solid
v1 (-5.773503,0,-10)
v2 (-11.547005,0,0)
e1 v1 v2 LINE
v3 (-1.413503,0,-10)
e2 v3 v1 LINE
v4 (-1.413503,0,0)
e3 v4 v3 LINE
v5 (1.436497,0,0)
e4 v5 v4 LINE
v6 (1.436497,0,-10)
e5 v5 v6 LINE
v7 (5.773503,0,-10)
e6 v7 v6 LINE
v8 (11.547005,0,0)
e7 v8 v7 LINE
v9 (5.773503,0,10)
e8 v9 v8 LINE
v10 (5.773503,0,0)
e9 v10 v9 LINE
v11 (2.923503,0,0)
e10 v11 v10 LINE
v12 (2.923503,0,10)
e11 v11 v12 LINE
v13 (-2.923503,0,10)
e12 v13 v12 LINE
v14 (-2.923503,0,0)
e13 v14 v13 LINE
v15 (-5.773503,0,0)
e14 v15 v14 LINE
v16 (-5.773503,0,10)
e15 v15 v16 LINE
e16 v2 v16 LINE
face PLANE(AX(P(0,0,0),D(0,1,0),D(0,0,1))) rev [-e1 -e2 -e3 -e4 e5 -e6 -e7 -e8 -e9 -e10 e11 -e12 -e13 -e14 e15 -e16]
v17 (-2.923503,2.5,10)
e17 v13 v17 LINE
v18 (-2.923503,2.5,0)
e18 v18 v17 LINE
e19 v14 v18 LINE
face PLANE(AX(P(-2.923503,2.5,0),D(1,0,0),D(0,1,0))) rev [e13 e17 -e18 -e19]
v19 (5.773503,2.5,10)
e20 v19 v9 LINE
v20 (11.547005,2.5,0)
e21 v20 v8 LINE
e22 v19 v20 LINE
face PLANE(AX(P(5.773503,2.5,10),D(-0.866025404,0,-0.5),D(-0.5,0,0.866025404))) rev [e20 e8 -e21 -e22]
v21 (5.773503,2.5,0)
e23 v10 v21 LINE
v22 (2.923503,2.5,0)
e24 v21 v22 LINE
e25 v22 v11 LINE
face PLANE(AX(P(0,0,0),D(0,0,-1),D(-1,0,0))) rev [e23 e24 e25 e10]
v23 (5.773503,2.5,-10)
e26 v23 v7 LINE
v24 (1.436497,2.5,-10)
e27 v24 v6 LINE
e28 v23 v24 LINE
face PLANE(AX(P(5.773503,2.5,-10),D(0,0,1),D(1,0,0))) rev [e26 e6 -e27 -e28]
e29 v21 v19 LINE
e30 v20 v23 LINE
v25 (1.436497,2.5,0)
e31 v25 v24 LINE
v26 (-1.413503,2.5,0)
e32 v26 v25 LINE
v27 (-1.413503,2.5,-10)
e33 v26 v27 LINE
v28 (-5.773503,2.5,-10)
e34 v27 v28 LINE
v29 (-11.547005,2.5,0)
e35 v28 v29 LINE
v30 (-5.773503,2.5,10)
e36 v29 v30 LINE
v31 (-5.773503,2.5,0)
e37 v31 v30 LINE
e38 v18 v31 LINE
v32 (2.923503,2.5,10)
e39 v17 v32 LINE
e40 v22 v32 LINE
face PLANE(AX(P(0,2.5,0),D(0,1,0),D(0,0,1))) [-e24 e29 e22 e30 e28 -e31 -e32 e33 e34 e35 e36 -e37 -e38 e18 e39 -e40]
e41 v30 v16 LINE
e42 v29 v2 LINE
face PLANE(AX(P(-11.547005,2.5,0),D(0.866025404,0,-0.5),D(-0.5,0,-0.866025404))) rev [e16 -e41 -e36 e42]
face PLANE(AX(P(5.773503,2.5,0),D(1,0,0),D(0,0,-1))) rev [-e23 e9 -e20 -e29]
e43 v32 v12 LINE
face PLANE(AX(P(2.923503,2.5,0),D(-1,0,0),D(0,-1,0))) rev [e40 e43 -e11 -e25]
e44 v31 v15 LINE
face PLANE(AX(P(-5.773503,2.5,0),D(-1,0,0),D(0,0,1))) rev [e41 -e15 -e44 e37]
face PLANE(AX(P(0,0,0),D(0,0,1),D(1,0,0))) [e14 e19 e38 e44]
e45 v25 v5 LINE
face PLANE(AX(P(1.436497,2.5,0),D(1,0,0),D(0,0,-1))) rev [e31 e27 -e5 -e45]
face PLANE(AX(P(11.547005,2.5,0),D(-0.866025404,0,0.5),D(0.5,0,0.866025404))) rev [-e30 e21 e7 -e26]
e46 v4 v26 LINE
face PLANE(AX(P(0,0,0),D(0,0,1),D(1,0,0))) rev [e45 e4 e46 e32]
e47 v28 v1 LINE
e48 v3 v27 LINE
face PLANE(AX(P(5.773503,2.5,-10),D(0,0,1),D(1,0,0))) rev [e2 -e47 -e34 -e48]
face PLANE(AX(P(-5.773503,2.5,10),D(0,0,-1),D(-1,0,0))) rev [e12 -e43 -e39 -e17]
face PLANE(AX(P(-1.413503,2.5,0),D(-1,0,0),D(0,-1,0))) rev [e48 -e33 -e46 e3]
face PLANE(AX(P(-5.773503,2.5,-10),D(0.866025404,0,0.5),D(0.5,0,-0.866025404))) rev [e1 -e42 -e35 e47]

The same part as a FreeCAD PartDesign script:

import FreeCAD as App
import Part
import Sketcher
Q = App.Units.Quantity

doc = App.newDocument("Part")
body = doc.addObject("PartDesign::Body", "Body")

# Sketch on XZ plane
sketch1 = body.newObject("Sketcher::SketchObject", "Sketch")
sketch1.AttachmentSupport = (doc.getObject("XZ_Plane"), [""])
sketch1.MapMode = "FlatFace"
sketch1.addGeometry([
    Part.LineSegment(App.Vector(12, 0, 0), App.Vector(6, -10, 0)),  # 0
    Part.LineSegment(App.Vector(6, -10, 0), App.Vector(-6, -10, 0)),  # 1
    Part.LineSegment(App.Vector(-6, -10, 0), App.Vector(-12, 0, 0)),  # 2
    Part.LineSegment(App.Vector(-12, 0, 0), App.Vector(-6, 10, 0)),  # 3
    Part.LineSegment(App.Vector(-6, 10, 0), App.Vector(6, 10, 0)),  # 4
    Part.LineSegment(App.Vector(6, 10, 0), App.Vector(12, 0, 0)),  # 5
], False)
sketch1.addConstraint([
    Sketcher.Constraint("Coincident", 0, 2, 1, 1),
    Sketcher.Constraint("Coincident", 1, 2, 2, 1),
    Sketcher.Constraint("Coincident", 2, 2, 3, 1),
    Sketcher.Constraint("Coincident", 3, 2, 4, 1),
    Sketcher.Constraint("Coincident", 4, 2, 5, 1),
    Sketcher.Constraint("Coincident", 5, 2, 0, 1),
    Sketcher.Constraint("Horizontal", 1),
    Sketcher.Constraint("Horizontal", 4),
    Sketcher.Constraint("Symmetric", 0, 2, 3, 2, -1, 1),
    Sketcher.Constraint("Symmetric", 2, 2, 5, 2, -1, 1),
    Sketcher.Constraint("PointOnObject", 2, 2, -1),
    Sketcher.Constraint("Parallel", 2, 5),
    Sketcher.Constraint("Vertical", 1, 2, 3, 2),
    Sketcher.Constraint("Angle", 0, Q("-120 deg")),
    Sketcher.Constraint("DistanceY", 0, 2, -1, 1, 10.0),
    Sketcher.Constraint("DistanceX", 1, 2, 1, 1, 11.547005),
])
pad1 = body.newObject("PartDesign::Pad", "Pad")
pad1.Profile = sketch1
pad1.Length = 2.5
pad1.Reversed = True

# Sketch on XY plane
sketch2 = body.newObject("Sketcher::SketchObject", "Sketch001")
sketch2.AttachmentSupport = (doc.getObject("XY_Plane"), [""])
sketch2.MapMode = "FlatFace"
sketch2.AttachmentOffset = App.Placement(App.Vector(0, 0, 10), App.Rotation())
sketch2.addGeometry([
    Part.LineSegment(App.Vector(-5.8, 2.5, 0), App.Vector(-5.8, 0, 0)),
    Part.LineSegment(App.Vector(-5.8, 0, 0), App.Vector(-2.9, 0, 0)),
    Part.LineSegment(App.Vector(-2.9, 0, 0), App.Vector(-2.9, 2.5, 0)),
    Part.LineSegment(App.Vector(-2.9, 2.5, 0), App.Vector(-5.8, 2.5, 0)),
], False)
sketch2.addConstraint([
    Sketcher.Constraint("Coincident", 0, 2, 1, 1),
    Sketcher.Constraint("Coincident", 1, 2, 2, 1),
    Sketcher.Constraint("Coincident", 2, 2, 3, 1),
    Sketcher.Constraint("Coincident", 3, 2, 0, 1),
    Sketcher.Constraint("Vertical", 0),
    Sketcher.Constraint("Horizontal", 1),
    Sketcher.Constraint("Vertical", 2),
    Sketcher.Constraint("Horizontal", 3),
    Sketcher.Constraint("PointOnObject", 0, 2, -1),
    Sketcher.Constraint("DistanceY", 0, 2, 0, 1, 2.5),
    Sketcher.Constraint("DistanceX", 1, 1, 1, 2, 2.85),
    Sketcher.Constraint("DistanceX", 0, 2, -1, 1, 5.773503),
])
pocket1 = body.newObject("PartDesign::Pocket", "Pocket")
pocket1.Profile = sketch2
pocket1.Length = 10

# Sketch on XY plane
sketch3 = body.newObject("Sketcher::SketchObject", "Sketch002")
sketch3.AttachmentSupport = (doc.getObject("XY_Plane"), [""])
sketch3.MapMode = "FlatFace"
sketch3.AttachmentOffset = App.Placement(App.Vector(0, 0, 10), App.Rotation())
sketch3.addGeometry([
    Part.LineSegment(App.Vector(2.9, 2.5, 0), App.Vector(2.9, 0, 0)),
    Part.LineSegment(App.Vector(2.9, 0, 0), App.Vector(5.8, 0, 0)),
    Part.LineSegment(App.Vector(5.8, 0, 0), App.Vector(5.8, 2.5, 0)),
    Part.LineSegment(App.Vector(5.8, 2.5, 0), App.Vector(2.9, 2.5, 0)),
], False)
sketch3.addConstraint([
    Sketcher.Constraint("Coincident", 0, 2, 1, 1),
    Sketcher.Constraint("Coincident", 1, 2, 2, 1),
    Sketcher.Constraint("Coincident", 2, 2, 3, 1),
    Sketcher.Constraint("Coincident", 3, 2, 0, 1),
    Sketcher.Constraint("Vertical", 0),
    Sketcher.Constraint("Horizontal", 1),
    Sketcher.Constraint("Vertical", 2),
    Sketcher.Constraint("Horizontal", 3),
    Sketcher.Constraint("PointOnObject", 0, 2, -1),
    Sketcher.Constraint("DistanceY", 0, 2, 0, 1, 2.5),
    Sketcher.Constraint("DistanceX", 1, 1, 1, 2, 2.85),
    Sketcher.Constraint("DistanceX", -1, 1, 0, 2, 2.923503),
])
pocket2 = body.newObject("PartDesign::Pocket", "Pocket001")
pocket2.Profile = sketch3
pocket2.Length = 10

# Sketch on XY plane
sketch4 = body.newObject("Sketcher::SketchObject", "Sketch003")
sketch4.AttachmentSupport = (doc.getObject("XY_Plane"), [""])
sketch4.MapMode = "FlatFace"
sketch4.AttachmentOffset = App.Placement(App.Vector(0, 0, -10), App.Rotation())
sketch4.addGeometry([
    Part.LineSegment(App.Vector(1.4, 2.5, 0), App.Vector(1.4, 0, 0)),
    Part.LineSegment(App.Vector(1.4, 0, 0), App.Vector(-1.4, 0, 0)),
    Part.LineSegment(App.Vector(-1.4, 0, 0), App.Vector(-1.4, 2.5, 0)),
    Part.LineSegment(App.Vector(-1.4, 2.5, 0), App.Vector(1.4, 2.5, 0)),
], False)
sketch4.addConstraint([
    Sketcher.Constraint("Coincident", 0, 2, 1, 1),
    Sketcher.Constraint("Coincident", 1, 2, 2, 1),
    Sketcher.Constraint("Coincident", 2, 2, 3, 1),
    Sketcher.Constraint("Coincident", 3, 2, 0, 1),
    Sketcher.Constraint("Vertical", 0),
    Sketcher.Constraint("Horizontal", 1),
    Sketcher.Constraint("Vertical", 2),
    Sketcher.Constraint("Horizontal", 3),
    Sketcher.Constraint("PointOnObject", 0, 2, -1),
    Sketcher.Constraint("DistanceY", 0, 2, 0, 1, 2.5),
    Sketcher.Constraint("DistanceX", 1, 2, 1, 1, 2.85),
    Sketcher.Constraint("DistanceX", -1, 1, 0, 2, 1.436497),
])
pocket3 = body.newObject("PartDesign::Pocket", "Pocket002")
pocket3.Profile = sketch4
pocket3.Length = 10
pocket3.Reversed = True

doc.recompute()
